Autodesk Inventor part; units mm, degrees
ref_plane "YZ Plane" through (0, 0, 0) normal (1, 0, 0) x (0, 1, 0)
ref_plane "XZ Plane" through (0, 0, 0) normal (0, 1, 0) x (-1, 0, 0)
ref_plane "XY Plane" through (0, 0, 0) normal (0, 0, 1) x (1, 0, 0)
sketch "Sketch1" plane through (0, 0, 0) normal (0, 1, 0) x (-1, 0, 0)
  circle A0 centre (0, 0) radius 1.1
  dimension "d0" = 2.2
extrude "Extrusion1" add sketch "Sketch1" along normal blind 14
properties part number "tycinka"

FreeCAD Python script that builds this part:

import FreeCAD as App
import Part
import Sketcher
Q = App.Units.Quantity

doc = App.newDocument("Part")
body = doc.addObject("PartDesign::Body", "Body")

# Sketch on XZ plane
sketch1 = body.newObject("Sketcher::SketchObject", "Sketch")
sketch1.AttachmentSupport = (doc.getObject("XZ_Plane"), [""])
sketch1.MapMode = "FlatFace"
sketch1.addGeometry(Part.Circle(App.Vector(0, 0, 0), App.Vector(0, 0, 1), 1.1), False)
sketch1.addConstraint([
    Sketcher.Constraint("Coincident", 0, 3, -1, 1),
    Sketcher.Constraint("Diameter", 0, Q("2.2 mm")),
])
pad1 = body.newObject("PartDesign::Pad", "Pad")
pad1.Profile = sketch1
pad1.Length = 14
pad1.Reversed = True

doc.recompute()
